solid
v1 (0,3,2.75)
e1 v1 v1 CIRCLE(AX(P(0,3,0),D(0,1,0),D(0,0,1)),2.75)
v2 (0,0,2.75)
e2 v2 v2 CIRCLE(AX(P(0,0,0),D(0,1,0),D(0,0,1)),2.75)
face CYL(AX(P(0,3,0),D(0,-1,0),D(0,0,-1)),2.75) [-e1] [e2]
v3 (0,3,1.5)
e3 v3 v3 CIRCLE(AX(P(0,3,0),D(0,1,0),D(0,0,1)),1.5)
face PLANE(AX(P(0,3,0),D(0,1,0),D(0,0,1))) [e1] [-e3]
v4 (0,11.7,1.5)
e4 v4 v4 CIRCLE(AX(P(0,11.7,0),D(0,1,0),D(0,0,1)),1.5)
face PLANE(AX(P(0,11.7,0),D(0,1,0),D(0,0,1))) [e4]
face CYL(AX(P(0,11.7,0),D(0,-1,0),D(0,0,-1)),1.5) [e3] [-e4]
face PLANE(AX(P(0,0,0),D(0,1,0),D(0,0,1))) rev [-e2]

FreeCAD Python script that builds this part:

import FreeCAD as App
import Part
import Sketcher
Q = App.Units.Quantity

doc = App.newDocument("Part")
params = doc.addObject("Spreadsheet::Sheet", "Params")
for row, (alias, value) in enumerate([
    ("sketch1_diameter", "5.5 mm"),
    ("pad1_length", "3 mm"),
    ("sketch2_diameter", "3 mm"),
    ("pad2_length", "8.7 mm"),
], start=1):
    params.set(f"A{row}", alias)
    params.set(f"B{row}", "=" + value)
    params.setAlias(f"B{row}", alias)

body = doc.addObject("PartDesign::Body", "Body")

# Sketch on XZ plane
sketch1 = doc.addObject("Sketcher::SketchObject", "Sketch")
body.addObject(sketch1)
sketch1.AttachmentSupport = (doc.XZ_Plane, [""])
sketch1.MapMode = "FlatFace"
sketch1.addGeometry(Part.Circle(App.Vector(0, 0, 0), App.Vector(0, 0, 1), 2.75), False)
sketch1.addConstraint([
    Sketcher.Constraint("Coincident", 0, 3, -1, 1),
    Sketcher.Constraint("Diameter", 0, Q("5.5 mm")),
])
sketch1.setExpression("Constraints[1]", "Params.sketch1_diameter")
pad1 = doc.addObject("PartDesign::Pad", "Pad")
body.addObject(pad1)
pad1.Profile = sketch1
pad1.setExpression("Length", "Params.pad1_length")
pad1.Reversed = True

# Sketch on XZ plane
sketch2 = doc.addObject("Sketcher::SketchObject", "Sketch001")
body.addObject(sketch2)
sketch2.AttachmentSupport = (doc.XZ_Plane, [""])
sketch2.MapMode = "FlatFace"
sketch2.AttachmentOffset = App.Placement(App.Vector(0, 0, -3), App.Rotation())
sketch2.addGeometry(Part.Circle(App.Vector(0, 0, 0), App.Vector(0, 0, 1), 1.5), False)
sketch2.addConstraint([
    Sketcher.Constraint("Coincident", 0, 3, -1, 1),
    Sketcher.Constraint("Diameter", 0, Q("3 mm")),
])
sketch2.setExpression("Constraints[1]", "Params.sketch2_diameter")
pad2 = doc.addObject("PartDesign::Pad", "Pad001")
body.addObject(pad2)
pad2.Profile = sketch2
pad2.setExpression("Length", "Params.pad2_length")
pad2.Reversed = True

doc.recompute()
